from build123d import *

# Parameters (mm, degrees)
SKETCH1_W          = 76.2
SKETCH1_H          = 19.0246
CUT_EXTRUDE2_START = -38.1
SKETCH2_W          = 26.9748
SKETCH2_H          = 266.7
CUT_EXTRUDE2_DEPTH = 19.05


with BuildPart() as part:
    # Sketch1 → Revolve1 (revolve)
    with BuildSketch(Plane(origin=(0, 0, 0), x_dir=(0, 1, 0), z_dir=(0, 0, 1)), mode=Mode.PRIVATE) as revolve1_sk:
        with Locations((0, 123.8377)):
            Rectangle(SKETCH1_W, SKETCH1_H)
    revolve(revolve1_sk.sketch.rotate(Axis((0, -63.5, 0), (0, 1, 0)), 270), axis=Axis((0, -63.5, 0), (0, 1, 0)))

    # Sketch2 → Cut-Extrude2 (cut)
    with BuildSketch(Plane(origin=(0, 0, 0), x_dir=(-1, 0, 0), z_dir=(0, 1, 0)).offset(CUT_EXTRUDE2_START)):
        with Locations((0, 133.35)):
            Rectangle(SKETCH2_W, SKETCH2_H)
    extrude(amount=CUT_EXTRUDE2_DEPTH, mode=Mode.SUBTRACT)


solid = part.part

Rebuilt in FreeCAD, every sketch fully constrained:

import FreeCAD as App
import Part
import Sketcher
Q = App.Units.Quantity


def add_polygon(sketch, points):
    """Adds a closed chain of lines whose ends are joined by coincident constraints."""
    first, n = sketch.GeometryCount, len(points)
    for a, b in zip(points, points[1:] + points[:1]):
        sketch.addGeometry(Part.LineSegment(App.Vector(*a, 0), App.Vector(*b, 0)), False)
    for i in range(n):
        sketch.addConstraint(Sketcher.Constraint("Coincident", first + i, 2, first + (i + 1) % n, 1))

doc = App.newDocument("Part")
body = doc.addObject("PartDesign::Body", "Body")

sketch1 = doc.addObject("Sketcher::SketchObject", "Sketch")
body.addObject(sketch1)
sketch1.AttachmentSupport = (doc.XY_Plane, [""])
sketch1.MapMode = "FlatFace"
add_polygon(sketch1, [(-133, -38), (-114, -38), (-114, 38), (-133, 38)])
sketch1.addConstraint(Sketcher.Constraint("Horizontal", 0))
sketch1.addConstraint(Sketcher.Constraint("Vertical", 1))
sketch1.addConstraint(Sketcher.Constraint("Horizontal", 2))
sketch1.addConstraint(Sketcher.Constraint("Vertical", 3))
sketch1.addConstraint(Sketcher.Constraint("DistanceY", 1, 1, 1, 2, Q("3 in")))
sketch1.addConstraint(Sketcher.Constraint("DistanceY", 0, 2, -1, 1, Q("1.5 in")))
sketch1.addConstraint(Sketcher.Constraint("DistanceX", 0, 1, 0, 2, Q("0.749 in")))
sketch1.addConstraint(Sketcher.Constraint("DistanceX", 2, 2, -1, 1, Q("5.25 in")))
revolution = doc.addObject("PartDesign::Revolution", "Revolution")
body.addObject(revolution)
revolution.Profile = sketch1
revolution.ReferenceAxis = (sketch1, ["V_Axis"])
revolution.Angle = 360

sketch2 = doc.addObject("Sketcher::SketchObject", "Sketch001")
body.addObject(sketch2)
sketch2.AttachmentSupport = (doc.XZ_Plane, [""])
sketch2.MapMode = "FlatFace"
sketch2.AttachmentOffset = App.Placement(App.Vector(0, 0, 1.5 * 25.4), App.Rotation())
add_polygon(sketch2, [(13, 267), (13, 0), (-13, 0), (-13, 267)])
sketch2.addConstraint(Sketcher.Constraint("Vertical", 0))
sketch2.addConstraint(Sketcher.Constraint("Horizontal", 1))
sketch2.addConstraint(Sketcher.Constraint("Vertical", 2))
sketch2.addConstraint(Sketcher.Constraint("Horizontal", 3))
sketch2.addConstraint(Sketcher.Constraint("Symmetric", 0, 2, 1, 2, -1, 1))
sketch2.addConstraint(Sketcher.Constraint("DistanceY", 0, 2, 0, 1, Q("10.5 in")))
sketch2.addConstraint(Sketcher.Constraint("DistanceX", 1, 2, 1, 1, Q("1.062 in")))
pocket1 = doc.addObject("PartDesign::Pocket", "Pocket")
body.addObject(pocket1)
pocket1.Profile = sketch2
pocket1.Length = Q("0.75 in")

doc.recompute()
